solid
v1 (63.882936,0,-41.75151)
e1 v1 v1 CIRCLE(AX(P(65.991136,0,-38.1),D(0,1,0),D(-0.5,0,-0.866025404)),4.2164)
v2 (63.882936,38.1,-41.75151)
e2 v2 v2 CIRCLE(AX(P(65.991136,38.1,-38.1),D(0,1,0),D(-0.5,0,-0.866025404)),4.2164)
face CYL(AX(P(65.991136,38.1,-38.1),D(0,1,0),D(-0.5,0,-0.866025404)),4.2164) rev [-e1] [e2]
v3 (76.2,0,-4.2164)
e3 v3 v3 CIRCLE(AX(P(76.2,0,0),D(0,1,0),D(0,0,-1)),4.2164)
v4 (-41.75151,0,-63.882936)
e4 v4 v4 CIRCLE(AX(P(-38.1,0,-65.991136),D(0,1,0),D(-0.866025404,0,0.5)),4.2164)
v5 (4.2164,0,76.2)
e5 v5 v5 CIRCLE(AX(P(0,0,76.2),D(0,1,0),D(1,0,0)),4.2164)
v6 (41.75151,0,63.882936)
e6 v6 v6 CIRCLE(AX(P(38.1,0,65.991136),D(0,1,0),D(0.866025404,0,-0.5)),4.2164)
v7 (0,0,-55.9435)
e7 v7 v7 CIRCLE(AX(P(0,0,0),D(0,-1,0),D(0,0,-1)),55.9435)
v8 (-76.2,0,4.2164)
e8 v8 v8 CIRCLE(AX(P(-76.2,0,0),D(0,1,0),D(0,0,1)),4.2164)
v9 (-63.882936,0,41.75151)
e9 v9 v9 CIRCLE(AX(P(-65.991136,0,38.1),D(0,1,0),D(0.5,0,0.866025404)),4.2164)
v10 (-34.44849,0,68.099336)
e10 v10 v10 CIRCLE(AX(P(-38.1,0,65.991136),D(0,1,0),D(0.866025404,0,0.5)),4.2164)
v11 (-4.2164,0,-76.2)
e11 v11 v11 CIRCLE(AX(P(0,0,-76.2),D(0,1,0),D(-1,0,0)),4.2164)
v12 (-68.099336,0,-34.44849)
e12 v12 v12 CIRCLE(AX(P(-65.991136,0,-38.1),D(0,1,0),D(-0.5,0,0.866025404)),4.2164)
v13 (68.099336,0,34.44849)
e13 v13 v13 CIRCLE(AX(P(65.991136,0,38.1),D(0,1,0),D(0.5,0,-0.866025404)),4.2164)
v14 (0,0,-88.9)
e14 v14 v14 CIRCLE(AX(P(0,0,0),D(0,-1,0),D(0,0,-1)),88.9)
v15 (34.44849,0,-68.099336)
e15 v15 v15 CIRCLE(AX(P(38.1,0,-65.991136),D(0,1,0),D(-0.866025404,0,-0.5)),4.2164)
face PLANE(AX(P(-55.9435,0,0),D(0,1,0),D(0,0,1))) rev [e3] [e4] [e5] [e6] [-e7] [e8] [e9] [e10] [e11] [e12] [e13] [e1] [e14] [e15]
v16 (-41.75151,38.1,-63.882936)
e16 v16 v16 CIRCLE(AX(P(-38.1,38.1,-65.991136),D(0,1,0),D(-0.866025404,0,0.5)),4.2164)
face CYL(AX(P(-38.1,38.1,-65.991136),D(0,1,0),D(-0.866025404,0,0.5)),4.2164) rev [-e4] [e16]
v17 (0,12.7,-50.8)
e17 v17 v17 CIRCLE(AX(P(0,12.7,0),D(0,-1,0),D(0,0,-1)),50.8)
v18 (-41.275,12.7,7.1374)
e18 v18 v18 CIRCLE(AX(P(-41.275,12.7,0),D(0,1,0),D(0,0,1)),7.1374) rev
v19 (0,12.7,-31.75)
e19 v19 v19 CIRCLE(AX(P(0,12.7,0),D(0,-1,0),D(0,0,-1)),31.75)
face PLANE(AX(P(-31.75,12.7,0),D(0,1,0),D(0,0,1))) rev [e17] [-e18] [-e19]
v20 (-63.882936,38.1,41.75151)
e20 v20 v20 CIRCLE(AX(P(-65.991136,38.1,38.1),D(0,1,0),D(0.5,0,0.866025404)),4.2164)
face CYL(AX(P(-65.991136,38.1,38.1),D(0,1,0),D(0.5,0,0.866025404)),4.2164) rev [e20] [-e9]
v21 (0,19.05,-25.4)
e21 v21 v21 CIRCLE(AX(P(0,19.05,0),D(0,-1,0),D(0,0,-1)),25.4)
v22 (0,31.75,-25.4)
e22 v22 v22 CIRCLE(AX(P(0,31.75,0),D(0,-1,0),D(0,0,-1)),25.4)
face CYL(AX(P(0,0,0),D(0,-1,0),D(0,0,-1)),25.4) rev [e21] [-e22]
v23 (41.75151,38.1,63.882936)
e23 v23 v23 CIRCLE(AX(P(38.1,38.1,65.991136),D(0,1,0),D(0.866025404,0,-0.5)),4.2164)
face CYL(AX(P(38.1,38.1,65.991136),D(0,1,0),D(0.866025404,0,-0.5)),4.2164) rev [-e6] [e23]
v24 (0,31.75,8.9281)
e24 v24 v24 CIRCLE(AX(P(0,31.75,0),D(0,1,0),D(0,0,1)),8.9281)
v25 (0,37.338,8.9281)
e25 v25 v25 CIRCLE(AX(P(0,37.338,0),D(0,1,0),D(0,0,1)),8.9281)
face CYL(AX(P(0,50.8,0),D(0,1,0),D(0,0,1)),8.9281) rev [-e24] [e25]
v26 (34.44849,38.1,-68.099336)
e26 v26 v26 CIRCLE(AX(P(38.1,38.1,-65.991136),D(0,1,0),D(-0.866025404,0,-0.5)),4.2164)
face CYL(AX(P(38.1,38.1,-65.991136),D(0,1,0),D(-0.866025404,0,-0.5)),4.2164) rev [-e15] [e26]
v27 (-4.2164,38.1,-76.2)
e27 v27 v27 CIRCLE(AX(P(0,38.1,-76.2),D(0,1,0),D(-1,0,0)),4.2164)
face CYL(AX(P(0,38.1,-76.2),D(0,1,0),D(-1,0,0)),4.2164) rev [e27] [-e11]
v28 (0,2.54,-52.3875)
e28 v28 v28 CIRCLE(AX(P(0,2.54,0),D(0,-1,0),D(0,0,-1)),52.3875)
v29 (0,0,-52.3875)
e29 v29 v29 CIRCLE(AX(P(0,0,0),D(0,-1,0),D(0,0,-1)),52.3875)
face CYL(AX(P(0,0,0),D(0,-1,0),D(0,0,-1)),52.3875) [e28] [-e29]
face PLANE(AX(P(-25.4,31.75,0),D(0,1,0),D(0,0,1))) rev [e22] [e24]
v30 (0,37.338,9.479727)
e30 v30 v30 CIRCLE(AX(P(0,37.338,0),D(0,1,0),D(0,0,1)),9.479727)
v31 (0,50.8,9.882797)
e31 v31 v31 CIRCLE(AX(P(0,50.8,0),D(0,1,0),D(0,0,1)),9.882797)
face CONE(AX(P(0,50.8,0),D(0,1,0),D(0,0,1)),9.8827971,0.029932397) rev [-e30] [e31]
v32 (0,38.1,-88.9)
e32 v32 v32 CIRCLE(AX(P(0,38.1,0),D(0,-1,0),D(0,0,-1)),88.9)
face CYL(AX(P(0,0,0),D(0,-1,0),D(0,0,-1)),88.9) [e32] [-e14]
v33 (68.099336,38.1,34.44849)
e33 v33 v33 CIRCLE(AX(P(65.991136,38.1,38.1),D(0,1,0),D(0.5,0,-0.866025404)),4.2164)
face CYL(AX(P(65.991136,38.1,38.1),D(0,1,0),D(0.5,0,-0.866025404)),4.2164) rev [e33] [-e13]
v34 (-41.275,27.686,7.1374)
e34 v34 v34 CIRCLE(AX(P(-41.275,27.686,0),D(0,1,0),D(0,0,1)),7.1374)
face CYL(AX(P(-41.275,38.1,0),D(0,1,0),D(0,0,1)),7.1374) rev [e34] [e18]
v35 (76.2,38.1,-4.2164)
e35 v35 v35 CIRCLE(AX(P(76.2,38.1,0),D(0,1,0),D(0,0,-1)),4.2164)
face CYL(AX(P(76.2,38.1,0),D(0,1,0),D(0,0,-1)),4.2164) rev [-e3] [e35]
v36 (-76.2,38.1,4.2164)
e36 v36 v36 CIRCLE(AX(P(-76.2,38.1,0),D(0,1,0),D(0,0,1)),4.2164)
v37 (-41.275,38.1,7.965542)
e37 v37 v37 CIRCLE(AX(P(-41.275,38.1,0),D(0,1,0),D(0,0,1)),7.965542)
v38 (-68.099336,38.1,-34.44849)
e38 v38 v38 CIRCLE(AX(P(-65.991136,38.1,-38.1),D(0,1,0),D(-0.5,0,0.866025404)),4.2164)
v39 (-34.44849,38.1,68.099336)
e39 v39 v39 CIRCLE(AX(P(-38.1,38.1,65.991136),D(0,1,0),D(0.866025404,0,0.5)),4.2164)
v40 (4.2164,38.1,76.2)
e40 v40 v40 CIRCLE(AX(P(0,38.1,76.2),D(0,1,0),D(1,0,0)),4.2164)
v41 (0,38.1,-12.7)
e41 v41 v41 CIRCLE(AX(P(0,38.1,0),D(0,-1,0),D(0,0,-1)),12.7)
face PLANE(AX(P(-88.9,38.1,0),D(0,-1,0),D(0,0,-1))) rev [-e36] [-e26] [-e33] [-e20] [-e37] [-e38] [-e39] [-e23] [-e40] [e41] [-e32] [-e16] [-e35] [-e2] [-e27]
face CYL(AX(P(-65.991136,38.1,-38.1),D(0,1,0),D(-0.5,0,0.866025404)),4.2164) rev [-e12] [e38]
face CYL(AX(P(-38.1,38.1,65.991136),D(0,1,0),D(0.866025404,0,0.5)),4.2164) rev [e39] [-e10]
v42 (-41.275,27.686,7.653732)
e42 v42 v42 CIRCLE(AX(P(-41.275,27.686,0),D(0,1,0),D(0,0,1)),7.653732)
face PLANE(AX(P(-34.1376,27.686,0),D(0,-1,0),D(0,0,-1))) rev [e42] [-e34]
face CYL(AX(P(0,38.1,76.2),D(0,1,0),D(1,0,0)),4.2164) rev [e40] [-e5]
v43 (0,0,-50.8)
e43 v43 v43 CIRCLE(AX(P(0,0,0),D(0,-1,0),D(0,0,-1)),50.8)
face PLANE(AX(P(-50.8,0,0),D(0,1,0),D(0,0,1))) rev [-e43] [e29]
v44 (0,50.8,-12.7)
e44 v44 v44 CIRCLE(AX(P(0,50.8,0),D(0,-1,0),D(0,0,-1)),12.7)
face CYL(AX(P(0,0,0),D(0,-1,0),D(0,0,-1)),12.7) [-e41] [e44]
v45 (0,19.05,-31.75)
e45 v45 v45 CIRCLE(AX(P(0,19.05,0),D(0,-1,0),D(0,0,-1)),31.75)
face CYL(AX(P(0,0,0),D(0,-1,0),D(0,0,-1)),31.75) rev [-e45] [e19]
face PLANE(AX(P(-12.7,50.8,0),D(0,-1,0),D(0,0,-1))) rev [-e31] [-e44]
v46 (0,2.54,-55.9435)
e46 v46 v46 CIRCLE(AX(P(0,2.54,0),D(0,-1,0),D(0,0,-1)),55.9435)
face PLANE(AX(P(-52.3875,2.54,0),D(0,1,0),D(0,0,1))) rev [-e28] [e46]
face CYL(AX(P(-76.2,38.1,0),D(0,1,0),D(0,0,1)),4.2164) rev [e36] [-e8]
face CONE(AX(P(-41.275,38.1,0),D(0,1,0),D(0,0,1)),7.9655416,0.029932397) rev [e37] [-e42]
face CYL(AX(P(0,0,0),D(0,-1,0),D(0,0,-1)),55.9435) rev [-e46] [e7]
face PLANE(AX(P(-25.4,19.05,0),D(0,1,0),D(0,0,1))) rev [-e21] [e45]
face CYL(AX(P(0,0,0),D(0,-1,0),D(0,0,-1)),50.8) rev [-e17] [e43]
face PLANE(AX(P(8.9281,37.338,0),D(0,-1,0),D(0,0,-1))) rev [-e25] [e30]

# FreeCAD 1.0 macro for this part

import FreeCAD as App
import Part
import Sketcher
from FreeCAD import Vector
Q = App.Units.Quantity

doc = App.newDocument("Part")
params = doc.addObject("Spreadsheet::Sheet", "Params")
for row, (alias, value) in enumerate([
    ("sketch1_width", "1 in"),
    ("sketch1_width2", "3 in"),
    ("sketch1_width3", "0.5 in"),
    ("sketch1_height", "0.1 in"),
    ("sketch1_height2", "1.5 in"),
    ("revolution_angle", "360 deg"),
    ("sketch2_width", "2 in"),
    ("sketch2_width2", "1.47 in"),
    ("groove_angle", "360 deg"),
    ("sketch3_width", "0.59 in"),
    ("groove2_angle", "360 deg"),
    ("sketch4_diameter", "0.332 in"),
    ("hole_diameter", "0.332 in"),
], start=1):
    params.set(f"A{row}", alias)
    params.set(f"B{row}", "=" + value)
    params.setAlias(f"B{row}", alias)

body = doc.addObject("PartDesign::Body", "Body")

# Sketch on XY plane
sketch1 = body.newObject("Sketcher::SketchObject", "Sketch")
sketch1.AttachmentSupport = (doc.getObject("XY_Plane"), [""])
sketch1.MapMode = "FlatFace"
sketch1.addGeometry([
    Part.LineSegment(Vector(-88.9, 0, 0), Vector(-55.9, 0, 0)),  # 0
    Part.LineSegment(Vector(-55.9, 0, 0), Vector(-55.9, 2.5, 0)),  # 1
    Part.LineSegment(Vector(-55.9, 2.5, 0), Vector(-52.4, 2.5, 0)),  # 2
    Part.LineSegment(Vector(-52.4, 2.5, 0), Vector(-52.4, 0, 0)),  # 3
    Part.LineSegment(Vector(-52.4, 0, 0), Vector(-50.8, 0, 0)),  # 4
    Part.LineSegment(Vector(-50.8, 0, 0), Vector(-50.8, 12.7, 0)),  # 5
    Part.LineSegment(Vector(-50.8, 12.7, 0), Vector(-31.8, 12.7, 0)),  # 6
    Part.LineSegment(Vector(-31.8, 12.7, 0), Vector(-31.8, 19.1, 0)),  # 7
    Part.LineSegment(Vector(-31.8, 19.1, 0), Vector(-25.4, 19.1, 0)),  # 8
    Part.LineSegment(Vector(-25.4, 19.1, 0), Vector(-25.4, 31.8, 0)),  # 9
    Part.LineSegment(Vector(-25.4, 31.8, 0), Vector(0, 31.8, 0)),  # 10
    Part.LineSegment(Vector(0, 31.8, 0), Vector(0, 50.8, 0)),  # 11
    Part.LineSegment(Vector(0, 50.8, 0), Vector(-12.7, 50.8, 0)),  # 12
    Part.LineSegment(Vector(-12.7, 50.8, 0), Vector(-12.7, 38.1, 0)),  # 13
    Part.LineSegment(Vector(-12.7, 38.1, 0), Vector(-88.9, 38.1, 0)),  # 14
    Part.LineSegment(Vector(-88.9, 38.1, 0), Vector(-88.9, 0, 0)),  # 15
], False)
sketch1.addConstraint([
    Sketcher.Constraint("Coincident", 0, 2, 1, 1),
    Sketcher.Constraint("Coincident", 1, 2, 2, 1),
    Sketcher.Constraint("Coincident", 2, 2, 3, 1),
    Sketcher.Constraint("Coincident", 3, 2, 4, 1),
    Sketcher.Constraint("Coincident", 4, 2, 5, 1),
    Sketcher.Constraint("Coincident", 5, 2, 6, 1),
    Sketcher.Constraint("Coincident", 6, 2, 7, 1),
    Sketcher.Constraint("Coincident", 7, 2, 8, 1),
    Sketcher.Constraint("Coincident", 8, 2, 9, 1),
    Sketcher.Constraint("Coincident", 9, 2, 10, 1),
    Sketcher.Constraint("Coincident", 10, 2, 11, 1),
    Sketcher.Constraint("Coincident", 11, 2, 12, 1),
    Sketcher.Constraint("Coincident", 12, 2, 13, 1),
    Sketcher.Constraint("Coincident", 13, 2, 14, 1),
    Sketcher.Constraint("Coincident", 14, 2, 15, 1),
    Sketcher.Constraint("Coincident", 15, 2, 0, 1),
    Sketcher.Constraint("Horizontal", 0),
    Sketcher.Constraint("Vertical", 1),
    Sketcher.Constraint("Horizontal", 2),
    Sketcher.Constraint("Vertical", 3),
    Sketcher.Constraint("Horizontal", 4),
    Sketcher.Constraint("Vertical", 5),
    Sketcher.Constraint("Horizontal", 6),
    Sketcher.Constraint("Vertical", 7),
    Sketcher.Constraint("Horizontal", 8),
    Sketcher.Constraint("Vertical", 9),
    Sketcher.Constraint("Horizontal", 10),
    Sketcher.Constraint("Vertical", 11),
    Sketcher.Constraint("Horizontal", 12),
    Sketcher.Constraint("Vertical", 13),
    Sketcher.Constraint("Horizontal", 14),
    Sketcher.Constraint("Vertical", 15),
    Sketcher.Constraint("PointOnObject", 0, 2, -1),
    Sketcher.Constraint("PointOnObject", 3, 2, -1),
    Sketcher.Constraint("PointOnObject", 10, 2, -2),
    Sketcher.Constraint("Equal", 12, 5),
    Sketcher.Constraint("Equal", 8, 7),
    Sketcher.Constraint("Equal", 5, 9),
    Sketcher.Constraint("Equal", 6, 11),
    Sketcher.Constraint("Equal", 9, 13),
    Sketcher.Constraint("DistanceX", 10, 1, 10, 2, Q("1 in")),
    Sketcher.Constraint("DistanceX", 14, 2, 14, 1, Q("3 in")),
    Sketcher.Constraint("DistanceX", 12, 2, 12, 1, Q("0.5 in")),
    Sketcher.Constraint("DistanceY", 1, 1, 1, 2, Q("0.1 in")),
    Sketcher.Constraint("DistanceY", 15, 2, 15, 1, Q("1.5 in")),
    Sketcher.Constraint("DistanceX", 2, 1, 2, 2, Q("0.14 in")),
    Sketcher.Constraint("DistanceX", 6, 1, 6, 2, Q("0.75 in")),
    Sketcher.Constraint("DistanceX", 4, 1, 4, 2, Q("0.0625 in")),
])
sketch1.setExpression("Constraints[40]", "Params.sketch1_width")
sketch1.setExpression("Constraints[41]", "Params.sketch1_width2")
sketch1.setExpression("Constraints[42]", "Params.sketch1_width3")
sketch1.setExpression("Constraints[43]", "Params.sketch1_height")
sketch1.setExpression("Constraints[44]", "Params.sketch1_height2")
revolution = body.newObject("PartDesign::Revolution", "Revolution")
revolution.Profile = sketch1
revolution.ReferenceAxis = (sketch1, ["V_Axis"])
revolution.setExpression("Angle", "Params.revolution_angle")

# Sketch on YZ plane
sketch2 = body.newObject("Sketcher::SketchObject", "Sketch001")
sketch2.AttachmentSupport = (doc.getObject("YZ_Plane"), [""])
sketch2.MapMode = "FlatFace"
sketch2.addGeometry([
    Part.LineSegment(Vector(0, 0, 0), Vector(50.8, 0, 0)),  # 0
    Part.LineSegment(Vector(50.8, 0, 0), Vector(50.8, 9.9, 0)),  # 1
    Part.LineSegment(Vector(50.8, 9.9, 0), Vector(37.3, 9.5, 0)),  # 2
    Part.LineSegment(Vector(37.3, 9.5, 0), Vector(37.3, 8.9, 0)),  # 3
    Part.LineSegment(Vector(37.3, 8.9, 0), Vector(0, 8.9, 0)),  # 4
    Part.LineSegment(Vector(0, 8.9, 0), Vector(0, 0, 0)),  # 5
], False)
sketch2.addConstraint([
    Sketcher.Constraint("Coincident", 0, 2, 1, 1),
    Sketcher.Constraint("Coincident", 1, 2, 2, 1),
    Sketcher.Constraint("Coincident", 2, 2, 3, 1),
    Sketcher.Constraint("Coincident", 3, 2, 4, 1),
    Sketcher.Constraint("Coincident", 4, 2, 5, 1),
    Sketcher.Constraint("Coincident", 5, 2, 0, 1),
    Sketcher.Constraint("Horizontal", 0),
    Sketcher.Constraint("Vertical", 1),
    Sketcher.Constraint("Vertical", 3),
    Sketcher.Constraint("Horizontal", 4),
    Sketcher.Constraint("Vertical", 5),
    Sketcher.Constraint("Coincident", 5, 2, -1, 1),
    Sketcher.Constraint("DistanceX", 0, 1, 0, 2, Q("2 in")),
    Sketcher.Constraint("DistanceX", 4, 2, 4, 1, Q("1.47 in")),
    Sketcher.Constraint("DistanceY", 5, 2, 5, 1, Q("0.3515 in")),
    Sketcher.Constraint("DistanceY", 1, 1, 1, 2, Q("9.882797 mm")),
    Sketcher.Constraint("DistanceY", 3, 2, 3, 1, Q("0.551627 mm")),
])
sketch2.setExpression("Constraints[12]", "Params.sketch2_width")
sketch2.setExpression("Constraints[13]", "Params.sketch2_width2")
groove = body.newObject("PartDesign::Groove", "Groove")
groove.Profile = sketch2
groove.ReferenceAxis = (sketch2, ["H_Axis"])
groove.setExpression("Angle", "Params.groove_angle")

# Sketch on YZ plane
sketch3 = body.newObject("Sketcher::SketchObject", "Sketch002")
sketch3.AttachmentSupport = (doc.getObject("YZ_Plane"), [""])
sketch3.MapMode = "FlatFace"
sketch3.AttachmentOffset = App.Placement(Vector(0, 0, -1.625 * 25.4), App.Rotation())
sketch3.addGeometry([
    Part.LineSegment(Vector(8.4, 0, 0), Vector(38.1, 0, 0)),  # 0
    Part.LineSegment(Vector(38.1, 0, 0), Vector(38.1, 8, 0)),  # 1
    Part.LineSegment(Vector(38.1, 8, 0), Vector(27.7, 7.7, 0)),  # 2
    Part.LineSegment(Vector(27.7, 7.7, 0), Vector(27.7, 7.1, 0)),  # 3
    Part.LineSegment(Vector(27.7, 7.1, 0), Vector(12.7, 7.1, 0)),  # 4
    Part.LineSegment(Vector(12.7, 7.1, 0), Vector(8.4, 0, 0)),  # 5
], False)
sketch3.addConstraint([
    Sketcher.Constraint("Coincident", 0, 2, 1, 1),
    Sketcher.Constraint("Coincident", 1, 2, 2, 1),
    Sketcher.Constraint("Coincident", 2, 2, 3, 1),
    Sketcher.Constraint("Coincident", 3, 2, 4, 1),
    Sketcher.Constraint("Coincident", 4, 2, 5, 1),
    Sketcher.Constraint("Coincident", 5, 2, 0, 1),
    Sketcher.Constraint("Horizontal", 0),
    Sketcher.Constraint("Vertical", 1),
    Sketcher.Constraint("Vertical", 3),
    Sketcher.Constraint("Horizontal", 4),
    Sketcher.Constraint("PointOnObject", 0, 2, -1),
    Sketcher.Constraint("Angle", 5, Q("-121 deg")),
    Sketcher.Constraint("DistanceX", 4, 2, 1, 2, Q("1 in")),
    Sketcher.Constraint("DistanceX", 4, 2, 4, 1, Q("0.59 in")),
    Sketcher.Constraint("DistanceX", -1, 1, 0, 2, Q("1.5 in")),
    Sketcher.Constraint("DistanceY", -1, 1, 3, 2, Q("0.281 in")),
    Sketcher.Constraint("DistanceY", 1, 1, 1, 2, Q("7.965542 mm")),
    Sketcher.Constraint("DistanceY", 3, 2, 3, 1, Q("0.516332 mm")),
])
sketch3.setExpression("Constraints[13]", "Params.sketch3_width")
groove2 = body.newObject("PartDesign::Groove", "Groove001")
groove2.Profile = sketch3
groove2.ReferenceAxis = (sketch3, ["H_Axis"])
groove2.setExpression("Angle", "Params.groove2_angle")

# Sketch on XZ plane
sketch4 = body.newObject("Sketcher::SketchObject", "Sketch003")
sketch4.AttachmentSupport = (doc.getObject("XZ_Plane"), [""])
sketch4.MapMode = "FlatFace"
sketch4.AttachmentOffset = App.Placement(Vector(0, 0, -1.5 * 25.4), App.Rotation())
sketch4.addGeometry(Part.Circle(Vector(-76.2, 0, 0), Vector(0, 0, 1), 4.2), False)
sketch4.addConstraint([
    Sketcher.Constraint("PointOnObject", 0, 3, -1),
    Sketcher.Constraint("Diameter", 0, Q("0.332 in")),
    Sketcher.Constraint("DistanceX", 0, 3, -1, 1, Q("3 in")),
])
sketch4.setExpression("Constraints[1]", "Params.sketch4_diameter")
doc.recompute()
hole = body.newObject("PartDesign::Hole", "Hole")
hole.Profile = sketch4
hole.ThreadType = "None"
hole.setExpression("Diameter", "Params.hole_diameter")
hole.DepthType = "ThroughAll"
hole.Reversed = True
doc.recompute()

polarpattern = body.newObject("PartDesign::PolarPattern", "PolarPattern")
polarpattern.Originals = [hole]
polarpattern.Axis = (doc.getObject("Y_Axis"), [""])
polarpattern.Angle = 360
polarpattern.Occurrences = 12
body.Tip = polarpattern

doc.recompute()
